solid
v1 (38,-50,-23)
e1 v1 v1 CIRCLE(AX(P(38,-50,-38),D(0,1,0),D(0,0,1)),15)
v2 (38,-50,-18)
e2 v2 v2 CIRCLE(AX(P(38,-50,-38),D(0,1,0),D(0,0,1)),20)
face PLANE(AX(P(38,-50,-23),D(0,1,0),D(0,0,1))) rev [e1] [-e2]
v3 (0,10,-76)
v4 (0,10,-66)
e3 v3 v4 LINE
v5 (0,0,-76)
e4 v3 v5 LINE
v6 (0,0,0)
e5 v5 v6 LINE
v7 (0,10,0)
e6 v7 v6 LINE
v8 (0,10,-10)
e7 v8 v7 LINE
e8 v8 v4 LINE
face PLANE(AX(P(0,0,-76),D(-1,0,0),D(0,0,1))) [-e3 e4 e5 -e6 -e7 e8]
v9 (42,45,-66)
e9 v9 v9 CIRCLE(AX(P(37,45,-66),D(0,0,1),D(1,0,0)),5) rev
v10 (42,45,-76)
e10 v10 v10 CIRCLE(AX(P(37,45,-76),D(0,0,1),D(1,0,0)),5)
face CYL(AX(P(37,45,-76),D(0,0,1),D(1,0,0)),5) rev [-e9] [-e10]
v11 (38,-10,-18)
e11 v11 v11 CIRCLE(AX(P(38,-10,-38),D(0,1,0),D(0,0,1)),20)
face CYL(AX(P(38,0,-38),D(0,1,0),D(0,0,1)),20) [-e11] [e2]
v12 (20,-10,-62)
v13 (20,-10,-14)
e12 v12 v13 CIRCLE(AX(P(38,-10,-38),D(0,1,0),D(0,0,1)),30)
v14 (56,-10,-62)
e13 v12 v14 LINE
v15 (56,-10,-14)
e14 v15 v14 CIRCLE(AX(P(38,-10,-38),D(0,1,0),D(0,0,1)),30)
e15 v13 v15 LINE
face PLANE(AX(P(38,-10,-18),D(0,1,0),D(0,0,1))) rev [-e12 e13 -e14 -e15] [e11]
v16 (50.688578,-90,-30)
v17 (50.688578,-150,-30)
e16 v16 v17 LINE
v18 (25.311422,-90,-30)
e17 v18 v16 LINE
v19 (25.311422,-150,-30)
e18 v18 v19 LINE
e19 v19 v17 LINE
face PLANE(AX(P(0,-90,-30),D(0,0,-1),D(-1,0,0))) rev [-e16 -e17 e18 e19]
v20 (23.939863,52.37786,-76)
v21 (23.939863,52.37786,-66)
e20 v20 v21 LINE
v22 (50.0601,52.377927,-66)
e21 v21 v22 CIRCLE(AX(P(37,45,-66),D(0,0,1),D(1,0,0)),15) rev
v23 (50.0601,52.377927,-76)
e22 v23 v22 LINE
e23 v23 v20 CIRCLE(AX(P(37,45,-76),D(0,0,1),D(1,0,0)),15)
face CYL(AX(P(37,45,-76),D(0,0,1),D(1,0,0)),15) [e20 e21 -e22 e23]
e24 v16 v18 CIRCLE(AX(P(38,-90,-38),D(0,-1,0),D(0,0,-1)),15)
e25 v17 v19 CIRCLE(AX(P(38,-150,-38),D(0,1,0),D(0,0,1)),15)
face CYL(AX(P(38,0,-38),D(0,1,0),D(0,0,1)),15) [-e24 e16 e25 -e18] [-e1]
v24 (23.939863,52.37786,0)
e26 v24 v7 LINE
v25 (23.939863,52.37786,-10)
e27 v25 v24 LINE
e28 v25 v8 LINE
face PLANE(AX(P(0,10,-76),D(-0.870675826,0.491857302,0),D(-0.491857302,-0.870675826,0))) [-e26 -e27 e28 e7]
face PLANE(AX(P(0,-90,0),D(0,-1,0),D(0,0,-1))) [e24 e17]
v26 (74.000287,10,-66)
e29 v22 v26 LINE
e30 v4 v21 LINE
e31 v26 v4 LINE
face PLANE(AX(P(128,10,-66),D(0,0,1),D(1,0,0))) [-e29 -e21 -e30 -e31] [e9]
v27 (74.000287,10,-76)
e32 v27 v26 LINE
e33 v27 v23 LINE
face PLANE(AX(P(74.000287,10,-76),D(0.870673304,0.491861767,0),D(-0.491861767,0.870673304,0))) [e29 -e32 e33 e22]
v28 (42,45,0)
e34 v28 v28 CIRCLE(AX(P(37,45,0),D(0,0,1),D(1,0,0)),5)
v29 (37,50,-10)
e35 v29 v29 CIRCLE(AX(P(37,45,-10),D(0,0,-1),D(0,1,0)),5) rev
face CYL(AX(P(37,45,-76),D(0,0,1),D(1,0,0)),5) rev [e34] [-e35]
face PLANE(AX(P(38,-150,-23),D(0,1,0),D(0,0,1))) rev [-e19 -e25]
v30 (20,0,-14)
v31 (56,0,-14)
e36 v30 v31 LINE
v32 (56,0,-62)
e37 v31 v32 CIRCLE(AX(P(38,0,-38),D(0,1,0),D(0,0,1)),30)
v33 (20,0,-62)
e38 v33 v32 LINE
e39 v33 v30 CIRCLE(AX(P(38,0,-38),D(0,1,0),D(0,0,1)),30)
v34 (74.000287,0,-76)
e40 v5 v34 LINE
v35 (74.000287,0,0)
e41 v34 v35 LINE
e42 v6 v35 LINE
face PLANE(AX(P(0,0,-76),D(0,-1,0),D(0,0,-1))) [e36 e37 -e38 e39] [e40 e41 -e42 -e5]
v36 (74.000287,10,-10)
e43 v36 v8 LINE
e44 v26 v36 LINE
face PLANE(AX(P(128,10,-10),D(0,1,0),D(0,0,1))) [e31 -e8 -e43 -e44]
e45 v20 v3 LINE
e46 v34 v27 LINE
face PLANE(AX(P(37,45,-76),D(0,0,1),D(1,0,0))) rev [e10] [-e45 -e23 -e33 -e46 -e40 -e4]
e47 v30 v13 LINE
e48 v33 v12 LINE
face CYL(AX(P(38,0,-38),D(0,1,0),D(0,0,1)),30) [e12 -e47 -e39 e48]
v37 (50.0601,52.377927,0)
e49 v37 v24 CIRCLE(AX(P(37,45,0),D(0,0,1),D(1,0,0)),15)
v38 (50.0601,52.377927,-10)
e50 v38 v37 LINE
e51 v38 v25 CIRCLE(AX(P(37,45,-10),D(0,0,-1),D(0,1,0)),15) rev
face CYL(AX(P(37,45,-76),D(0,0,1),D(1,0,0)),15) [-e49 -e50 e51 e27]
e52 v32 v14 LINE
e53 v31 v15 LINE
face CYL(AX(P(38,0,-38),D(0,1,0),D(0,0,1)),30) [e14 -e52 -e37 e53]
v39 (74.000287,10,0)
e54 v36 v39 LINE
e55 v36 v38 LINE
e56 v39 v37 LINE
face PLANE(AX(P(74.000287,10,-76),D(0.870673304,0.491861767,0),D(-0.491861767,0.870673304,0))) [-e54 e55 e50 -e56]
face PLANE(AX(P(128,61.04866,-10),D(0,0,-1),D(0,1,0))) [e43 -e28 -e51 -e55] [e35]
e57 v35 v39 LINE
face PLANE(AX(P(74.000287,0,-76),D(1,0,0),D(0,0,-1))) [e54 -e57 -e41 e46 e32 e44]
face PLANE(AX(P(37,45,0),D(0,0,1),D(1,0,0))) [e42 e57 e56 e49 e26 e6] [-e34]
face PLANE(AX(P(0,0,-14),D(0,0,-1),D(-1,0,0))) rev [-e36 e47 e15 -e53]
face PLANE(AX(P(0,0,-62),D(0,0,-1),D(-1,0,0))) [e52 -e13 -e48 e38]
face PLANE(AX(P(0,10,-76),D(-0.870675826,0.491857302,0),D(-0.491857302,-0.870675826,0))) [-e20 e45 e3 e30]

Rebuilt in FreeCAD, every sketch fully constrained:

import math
import FreeCAD as App
import Part
import Sketcher
Q = App.Units.Quantity


def add_polygon(sketch, points):
    """Adds a closed chain of lines whose ends are joined by coincident constraints."""
    first, n = sketch.GeometryCount, len(points)
    for a, b in zip(points, points[1:] + points[:1]):
        sketch.addGeometry(Part.LineSegment(App.Vector(*a, 0), App.Vector(*b, 0)), False)
    for i in range(n):
        sketch.addConstraint(Sketcher.Constraint("Coincident", first + i, 2, first + (i + 1) % n, 1))

doc = App.newDocument("Part")
params = doc.addObject("Spreadsheet::Sheet", "Params")
for row, (alias, value) in enumerate([
    ("sketch1_diameter", "10 mm"),
    ("sketch1_radius", "15 mm"),
    ("sketch1_height", "10 mm"),
    ("pad1_length", "76 mm"),
    ("sketch2_height", "56 mm"),
    ("pocket1_length", "128 mm"),
    ("sketch3_width", "10 mm"),
    ("sketch3_width2", "150 mm"),
    ("sketch3_width3", "100 mm"),
    ("sketch3_height", "30 mm"),
    ("sketch3_height2", "15 mm"),
    ("revolution_angle", "360 deg"),
    ("sketch4_radius", "30 mm"),
    ("sketch4_width", "36 mm"),
    ("pocket2_length", "10 mm"),
    ("pocket3_length", "60 mm"),
], start=1):
    params.set(f"A{row}", alias)
    params.set(f"B{row}", "=" + value)
    params.setAlias(f"B{row}", alias)

body = doc.addObject("PartDesign::Body", "Body")

sketch1 = body.newObject("Sketcher::SketchObject", "Sketch")
sketch1.AttachmentSupport = (doc.getObject("XY_Plane"), [""])
sketch1.MapMode = "FlatFace"
sketch1.addGeometry([
    Part.LineSegment(App.Vector(0, 10, 0), App.Vector(0, 0, 0)),
    Part.LineSegment(App.Vector(0, 0, 0), App.Vector(74, 0, 0)),
    Part.LineSegment(App.Vector(74, 0, 0), App.Vector(74, 10, 0)),
    Part.LineSegment(App.Vector(74, 10, 0), App.Vector(50, 52, 0)),
    Part.ArcOfCircle(Part.Circle(App.Vector(37, 45, 0), App.Vector(0, 0, 1), 15), math.radians(29), math.radians(151)),
    Part.LineSegment(App.Vector(24, 52, 0), App.Vector(0, 10, 0)),
    Part.Circle(App.Vector(37, 45, 0), App.Vector(0, 0, 1), 5),
], False)
sketch1.addConstraint([
    Sketcher.Constraint("Coincident", 0, 2, 1, 1),
    Sketcher.Constraint("Coincident", 1, 2, 2, 1),
    Sketcher.Constraint("Coincident", 2, 2, 3, 1),
    Sketcher.Constraint("Tangent", 3, 2, 4, 1),
    Sketcher.Constraint("Tangent", 4, 2, 5, 1),
    Sketcher.Constraint("Coincident", 5, 2, 0, 1),
    Sketcher.Constraint("Vertical", 0),
    Sketcher.Constraint("Horizontal", 1),
    Sketcher.Constraint("Vertical", 2),
    Sketcher.Constraint("Coincident", 0, 2, -1, 1),
    Sketcher.Constraint("Coincident", 6, 3, 4, 3),
    Sketcher.Constraint("Horizontal", 2, 2, 5, 2),
    Sketcher.Constraint("Diameter", 6, Q("10 mm")),
    Sketcher.Constraint("Radius", 4, Q("15 mm")),
    Sketcher.Constraint("DistanceY", 0, 2, 0, 1, Q("10 mm")),
    Sketcher.Constraint("DistanceX", -1, 1, 4, 3, Q("37 mm")),
    Sketcher.Constraint("DistanceY", -1, 1, 4, 3, Q("45 mm")),
    Sketcher.Constraint("DistanceX", -1, 1, 3, 2, Q("50.0601 mm")),
])
sketch1.setExpression("Constraints[12]", "Params.sketch1_diameter")
sketch1.setExpression("Constraints[13]", "Params.sketch1_radius")
sketch1.setExpression("Constraints[14]", "Params.sketch1_height")
pad1 = body.newObject("PartDesign::Pad", "Pad")
pad1.Profile = sketch1
pad1.setExpression("Length", "Params.pad1_length")
pad1.Reversed = True

sketch2 = body.newObject("Sketcher::SketchObject", "Sketch001")
sketch2.AttachmentSupport = (doc.getObject("YZ_Plane"), [""])
sketch2.MapMode = "FlatFace"
add_polygon(sketch2, [(61, -10), (10, -10), (10, -66), (61, -66)])
sketch2.addConstraint([
    Sketcher.Constraint("Horizontal", 0),
    Sketcher.Constraint("Vertical", 1),
    Sketcher.Constraint("Horizontal", 2),
    Sketcher.Constraint("Vertical", 3),
    Sketcher.Constraint("DistanceY", 1, 2, 1, 1, Q("56 mm")),
    Sketcher.Constraint("DistanceX", -1, 1, 0, 2, Q("10 mm")),
    Sketcher.Constraint("DistanceY", 0, 2, -1, 1, Q("10 mm")),
    Sketcher.Constraint("DistanceX", 0, 2, 0, 1, Q("51.04866 mm")),
])
sketch2.setExpression("Constraints[8]", "Params.sketch2_height")
pocket1 = body.newObject("PartDesign::Pocket", "Pocket")
pocket1.Profile = sketch2
pocket1.setExpression("Length", "Params.pocket1_length")
pocket1.Reversed = True

sketch3 = body.newObject("Sketcher::SketchObject", "Sketch002")
sketch3.AttachmentSupport = (doc.getObject("YZ_Plane"), [""])
sketch3.MapMode = "FlatFace"
sketch3.AttachmentOffset = App.Placement(App.Vector(0, 0, 38), App.Rotation())
add_polygon(sketch3, [(-10, -18), (-10, -8), (0, -8), (0, -38), (-150, -38), (-150, -23), (-50, -23), (-50, -18)])
sketch3.addGeometry(Part.LineSegment(App.Vector(0, -38, 0), App.Vector(-150, -38, 0)), True)
sketch3.addConstraint([
    Sketcher.Constraint("Vertical", 0),
    Sketcher.Constraint("Horizontal", 1),
    Sketcher.Constraint("Vertical", 2),
    Sketcher.Constraint("Horizontal", 3),
    Sketcher.Constraint("Vertical", 4),
    Sketcher.Constraint("Horizontal", 5),
    Sketcher.Constraint("Vertical", 6),
    Sketcher.Constraint("Horizontal", 7),
    Sketcher.Constraint("Horizontal", 8),
    Sketcher.Constraint("Coincident", 8, 1, 2, 2),
    Sketcher.Constraint("PointOnObject", 1, 2, -2),
    Sketcher.Constraint("Vertical", 4, 2, 8, 2),
    Sketcher.Constraint("Equal", 1, 0),
    Sketcher.Constraint("DistanceX", 1, 1, 1, 2, Q("10 mm")),
    Sketcher.Constraint("DistanceX", 3, 2, 3, 1, Q("150 mm")),
    Sketcher.Constraint("DistanceX", 5, 1, 5, 2, Q("100 mm")),
    Sketcher.Constraint("DistanceY", 2, 2, 2, 1, Q("30 mm")),
    Sketcher.Constraint("DistanceY", 4, 1, 4, 2, Q("15 mm")),
    Sketcher.Constraint("DistanceY", 0, 2, -1, 1, Q("8 mm")),
])
sketch3.setExpression("Constraints[21]", "Params.sketch3_width")
sketch3.setExpression("Constraints[22]", "Params.sketch3_width2")
sketch3.setExpression("Constraints[23]", "Params.sketch3_width3")
sketch3.setExpression("Constraints[24]", "Params.sketch3_height")
sketch3.setExpression("Constraints[25]", "Params.sketch3_height2")
revolution = body.newObject("PartDesign::Revolution", "Revolution")
revolution.Profile = sketch3
revolution.ReferenceAxis = (sketch3, ["Axis0"])
revolution.setExpression("Angle", "Params.revolution_angle")

sketch4 = body.newObject("Sketcher::SketchObject", "Sketch003")
sketch4.AttachmentSupport = (doc.getObject("XZ_Plane"), [""])
sketch4.MapMode = "FlatFace"
sketch4.addGeometry([
    Part.LineSegment(App.Vector(56, -62, 0), App.Vector(20, -62, 0)),
    Part.ArcOfCircle(Part.Circle(App.Vector(38, -38, 0), App.Vector(0, 0, 1), 30), math.radians(-127), math.radians(-53)),
    Part.ArcOfCircle(Part.Circle(App.Vector(38, -38, 0), App.Vector(0, 0, 1), 30), math.radians(53), math.radians(127)),
    Part.LineSegment(App.Vector(20, -14, 0), App.Vector(56, -14, 0)),
], False)
sketch4.addConstraint([
    Sketcher.Constraint("Coincident", 0, 1, 1, 2),
    Sketcher.Constraint("Coincident", 1, 1, 0, 2),
    Sketcher.Constraint("Coincident", 2, 1, 3, 2),
    Sketcher.Constraint("Coincident", 3, 1, 2, 2),
    Sketcher.Constraint("Horizontal", 0),
    Sketcher.Constraint("Horizontal", 3),
    Sketcher.Constraint("Coincident", 2, 3, 1, 3),
    Sketcher.Constraint("Equal", 1, 2),
    Sketcher.Constraint("Vertical", 0, 1, 2, 1),
    Sketcher.Constraint("Radius", 1, Q("30 mm")),
    Sketcher.Constraint("DistanceX", 0, 2, 0, 1, Q("36 mm")),
    Sketcher.Constraint("DistanceX", -1, 1, 1, 3, Q("38 mm")),
    Sketcher.Constraint("DistanceY", 1, 3, -1, 1, Q("38 mm")),
])
sketch4.setExpression("Constraints[9]", "Params.sketch4_radius")
sketch4.setExpression("Constraints[10]", "Params.sketch4_width")
pocket2 = body.newObject("PartDesign::Pocket", "Pocket001")
pocket2.Profile = sketch4
pocket2.setExpression("Length", "Params.pocket2_length")
pocket2.Reversed = True

sketch5 = body.newObject("Sketcher::SketchObject", "Sketch004")
sketch5.AttachmentSupport = (doc.getObject("XZ_Plane"), [""])
sketch5.MapMode = "FlatFace"
sketch5.AttachmentOffset = App.Placement(App.Vector(0, 0, 150), App.Rotation())
add_polygon(sketch5, [(-122, -30), (198, -30), (198, 264), (-122, 264)])
sketch5.addConstraint([
    Sketcher.Constraint("Horizontal", 0),
    Sketcher.Constraint("Vertical", 1),
    Sketcher.Constraint("Horizontal", 2),
    Sketcher.Constraint("Vertical", 3),
    Sketcher.Constraint("DistanceY", 0, 2, -1, 1, Q("30 mm")),
    Sketcher.Constraint("DistanceX", 0, 1, 0, 2, Q("319.175092 mm")),
    Sketcher.Constraint("DistanceY", 1, 1, 1, 2, Q("293.797937 mm")),
    Sketcher.Constraint("DistanceX", -1, 1, 0, 2, Q("197.587546 mm")),
])
pocket3 = body.newObject("PartDesign::Pocket", "Pocket002")
pocket3.Profile = sketch5
pocket3.setExpression("Length", "Params.pocket3_length")

doc.recompute()
